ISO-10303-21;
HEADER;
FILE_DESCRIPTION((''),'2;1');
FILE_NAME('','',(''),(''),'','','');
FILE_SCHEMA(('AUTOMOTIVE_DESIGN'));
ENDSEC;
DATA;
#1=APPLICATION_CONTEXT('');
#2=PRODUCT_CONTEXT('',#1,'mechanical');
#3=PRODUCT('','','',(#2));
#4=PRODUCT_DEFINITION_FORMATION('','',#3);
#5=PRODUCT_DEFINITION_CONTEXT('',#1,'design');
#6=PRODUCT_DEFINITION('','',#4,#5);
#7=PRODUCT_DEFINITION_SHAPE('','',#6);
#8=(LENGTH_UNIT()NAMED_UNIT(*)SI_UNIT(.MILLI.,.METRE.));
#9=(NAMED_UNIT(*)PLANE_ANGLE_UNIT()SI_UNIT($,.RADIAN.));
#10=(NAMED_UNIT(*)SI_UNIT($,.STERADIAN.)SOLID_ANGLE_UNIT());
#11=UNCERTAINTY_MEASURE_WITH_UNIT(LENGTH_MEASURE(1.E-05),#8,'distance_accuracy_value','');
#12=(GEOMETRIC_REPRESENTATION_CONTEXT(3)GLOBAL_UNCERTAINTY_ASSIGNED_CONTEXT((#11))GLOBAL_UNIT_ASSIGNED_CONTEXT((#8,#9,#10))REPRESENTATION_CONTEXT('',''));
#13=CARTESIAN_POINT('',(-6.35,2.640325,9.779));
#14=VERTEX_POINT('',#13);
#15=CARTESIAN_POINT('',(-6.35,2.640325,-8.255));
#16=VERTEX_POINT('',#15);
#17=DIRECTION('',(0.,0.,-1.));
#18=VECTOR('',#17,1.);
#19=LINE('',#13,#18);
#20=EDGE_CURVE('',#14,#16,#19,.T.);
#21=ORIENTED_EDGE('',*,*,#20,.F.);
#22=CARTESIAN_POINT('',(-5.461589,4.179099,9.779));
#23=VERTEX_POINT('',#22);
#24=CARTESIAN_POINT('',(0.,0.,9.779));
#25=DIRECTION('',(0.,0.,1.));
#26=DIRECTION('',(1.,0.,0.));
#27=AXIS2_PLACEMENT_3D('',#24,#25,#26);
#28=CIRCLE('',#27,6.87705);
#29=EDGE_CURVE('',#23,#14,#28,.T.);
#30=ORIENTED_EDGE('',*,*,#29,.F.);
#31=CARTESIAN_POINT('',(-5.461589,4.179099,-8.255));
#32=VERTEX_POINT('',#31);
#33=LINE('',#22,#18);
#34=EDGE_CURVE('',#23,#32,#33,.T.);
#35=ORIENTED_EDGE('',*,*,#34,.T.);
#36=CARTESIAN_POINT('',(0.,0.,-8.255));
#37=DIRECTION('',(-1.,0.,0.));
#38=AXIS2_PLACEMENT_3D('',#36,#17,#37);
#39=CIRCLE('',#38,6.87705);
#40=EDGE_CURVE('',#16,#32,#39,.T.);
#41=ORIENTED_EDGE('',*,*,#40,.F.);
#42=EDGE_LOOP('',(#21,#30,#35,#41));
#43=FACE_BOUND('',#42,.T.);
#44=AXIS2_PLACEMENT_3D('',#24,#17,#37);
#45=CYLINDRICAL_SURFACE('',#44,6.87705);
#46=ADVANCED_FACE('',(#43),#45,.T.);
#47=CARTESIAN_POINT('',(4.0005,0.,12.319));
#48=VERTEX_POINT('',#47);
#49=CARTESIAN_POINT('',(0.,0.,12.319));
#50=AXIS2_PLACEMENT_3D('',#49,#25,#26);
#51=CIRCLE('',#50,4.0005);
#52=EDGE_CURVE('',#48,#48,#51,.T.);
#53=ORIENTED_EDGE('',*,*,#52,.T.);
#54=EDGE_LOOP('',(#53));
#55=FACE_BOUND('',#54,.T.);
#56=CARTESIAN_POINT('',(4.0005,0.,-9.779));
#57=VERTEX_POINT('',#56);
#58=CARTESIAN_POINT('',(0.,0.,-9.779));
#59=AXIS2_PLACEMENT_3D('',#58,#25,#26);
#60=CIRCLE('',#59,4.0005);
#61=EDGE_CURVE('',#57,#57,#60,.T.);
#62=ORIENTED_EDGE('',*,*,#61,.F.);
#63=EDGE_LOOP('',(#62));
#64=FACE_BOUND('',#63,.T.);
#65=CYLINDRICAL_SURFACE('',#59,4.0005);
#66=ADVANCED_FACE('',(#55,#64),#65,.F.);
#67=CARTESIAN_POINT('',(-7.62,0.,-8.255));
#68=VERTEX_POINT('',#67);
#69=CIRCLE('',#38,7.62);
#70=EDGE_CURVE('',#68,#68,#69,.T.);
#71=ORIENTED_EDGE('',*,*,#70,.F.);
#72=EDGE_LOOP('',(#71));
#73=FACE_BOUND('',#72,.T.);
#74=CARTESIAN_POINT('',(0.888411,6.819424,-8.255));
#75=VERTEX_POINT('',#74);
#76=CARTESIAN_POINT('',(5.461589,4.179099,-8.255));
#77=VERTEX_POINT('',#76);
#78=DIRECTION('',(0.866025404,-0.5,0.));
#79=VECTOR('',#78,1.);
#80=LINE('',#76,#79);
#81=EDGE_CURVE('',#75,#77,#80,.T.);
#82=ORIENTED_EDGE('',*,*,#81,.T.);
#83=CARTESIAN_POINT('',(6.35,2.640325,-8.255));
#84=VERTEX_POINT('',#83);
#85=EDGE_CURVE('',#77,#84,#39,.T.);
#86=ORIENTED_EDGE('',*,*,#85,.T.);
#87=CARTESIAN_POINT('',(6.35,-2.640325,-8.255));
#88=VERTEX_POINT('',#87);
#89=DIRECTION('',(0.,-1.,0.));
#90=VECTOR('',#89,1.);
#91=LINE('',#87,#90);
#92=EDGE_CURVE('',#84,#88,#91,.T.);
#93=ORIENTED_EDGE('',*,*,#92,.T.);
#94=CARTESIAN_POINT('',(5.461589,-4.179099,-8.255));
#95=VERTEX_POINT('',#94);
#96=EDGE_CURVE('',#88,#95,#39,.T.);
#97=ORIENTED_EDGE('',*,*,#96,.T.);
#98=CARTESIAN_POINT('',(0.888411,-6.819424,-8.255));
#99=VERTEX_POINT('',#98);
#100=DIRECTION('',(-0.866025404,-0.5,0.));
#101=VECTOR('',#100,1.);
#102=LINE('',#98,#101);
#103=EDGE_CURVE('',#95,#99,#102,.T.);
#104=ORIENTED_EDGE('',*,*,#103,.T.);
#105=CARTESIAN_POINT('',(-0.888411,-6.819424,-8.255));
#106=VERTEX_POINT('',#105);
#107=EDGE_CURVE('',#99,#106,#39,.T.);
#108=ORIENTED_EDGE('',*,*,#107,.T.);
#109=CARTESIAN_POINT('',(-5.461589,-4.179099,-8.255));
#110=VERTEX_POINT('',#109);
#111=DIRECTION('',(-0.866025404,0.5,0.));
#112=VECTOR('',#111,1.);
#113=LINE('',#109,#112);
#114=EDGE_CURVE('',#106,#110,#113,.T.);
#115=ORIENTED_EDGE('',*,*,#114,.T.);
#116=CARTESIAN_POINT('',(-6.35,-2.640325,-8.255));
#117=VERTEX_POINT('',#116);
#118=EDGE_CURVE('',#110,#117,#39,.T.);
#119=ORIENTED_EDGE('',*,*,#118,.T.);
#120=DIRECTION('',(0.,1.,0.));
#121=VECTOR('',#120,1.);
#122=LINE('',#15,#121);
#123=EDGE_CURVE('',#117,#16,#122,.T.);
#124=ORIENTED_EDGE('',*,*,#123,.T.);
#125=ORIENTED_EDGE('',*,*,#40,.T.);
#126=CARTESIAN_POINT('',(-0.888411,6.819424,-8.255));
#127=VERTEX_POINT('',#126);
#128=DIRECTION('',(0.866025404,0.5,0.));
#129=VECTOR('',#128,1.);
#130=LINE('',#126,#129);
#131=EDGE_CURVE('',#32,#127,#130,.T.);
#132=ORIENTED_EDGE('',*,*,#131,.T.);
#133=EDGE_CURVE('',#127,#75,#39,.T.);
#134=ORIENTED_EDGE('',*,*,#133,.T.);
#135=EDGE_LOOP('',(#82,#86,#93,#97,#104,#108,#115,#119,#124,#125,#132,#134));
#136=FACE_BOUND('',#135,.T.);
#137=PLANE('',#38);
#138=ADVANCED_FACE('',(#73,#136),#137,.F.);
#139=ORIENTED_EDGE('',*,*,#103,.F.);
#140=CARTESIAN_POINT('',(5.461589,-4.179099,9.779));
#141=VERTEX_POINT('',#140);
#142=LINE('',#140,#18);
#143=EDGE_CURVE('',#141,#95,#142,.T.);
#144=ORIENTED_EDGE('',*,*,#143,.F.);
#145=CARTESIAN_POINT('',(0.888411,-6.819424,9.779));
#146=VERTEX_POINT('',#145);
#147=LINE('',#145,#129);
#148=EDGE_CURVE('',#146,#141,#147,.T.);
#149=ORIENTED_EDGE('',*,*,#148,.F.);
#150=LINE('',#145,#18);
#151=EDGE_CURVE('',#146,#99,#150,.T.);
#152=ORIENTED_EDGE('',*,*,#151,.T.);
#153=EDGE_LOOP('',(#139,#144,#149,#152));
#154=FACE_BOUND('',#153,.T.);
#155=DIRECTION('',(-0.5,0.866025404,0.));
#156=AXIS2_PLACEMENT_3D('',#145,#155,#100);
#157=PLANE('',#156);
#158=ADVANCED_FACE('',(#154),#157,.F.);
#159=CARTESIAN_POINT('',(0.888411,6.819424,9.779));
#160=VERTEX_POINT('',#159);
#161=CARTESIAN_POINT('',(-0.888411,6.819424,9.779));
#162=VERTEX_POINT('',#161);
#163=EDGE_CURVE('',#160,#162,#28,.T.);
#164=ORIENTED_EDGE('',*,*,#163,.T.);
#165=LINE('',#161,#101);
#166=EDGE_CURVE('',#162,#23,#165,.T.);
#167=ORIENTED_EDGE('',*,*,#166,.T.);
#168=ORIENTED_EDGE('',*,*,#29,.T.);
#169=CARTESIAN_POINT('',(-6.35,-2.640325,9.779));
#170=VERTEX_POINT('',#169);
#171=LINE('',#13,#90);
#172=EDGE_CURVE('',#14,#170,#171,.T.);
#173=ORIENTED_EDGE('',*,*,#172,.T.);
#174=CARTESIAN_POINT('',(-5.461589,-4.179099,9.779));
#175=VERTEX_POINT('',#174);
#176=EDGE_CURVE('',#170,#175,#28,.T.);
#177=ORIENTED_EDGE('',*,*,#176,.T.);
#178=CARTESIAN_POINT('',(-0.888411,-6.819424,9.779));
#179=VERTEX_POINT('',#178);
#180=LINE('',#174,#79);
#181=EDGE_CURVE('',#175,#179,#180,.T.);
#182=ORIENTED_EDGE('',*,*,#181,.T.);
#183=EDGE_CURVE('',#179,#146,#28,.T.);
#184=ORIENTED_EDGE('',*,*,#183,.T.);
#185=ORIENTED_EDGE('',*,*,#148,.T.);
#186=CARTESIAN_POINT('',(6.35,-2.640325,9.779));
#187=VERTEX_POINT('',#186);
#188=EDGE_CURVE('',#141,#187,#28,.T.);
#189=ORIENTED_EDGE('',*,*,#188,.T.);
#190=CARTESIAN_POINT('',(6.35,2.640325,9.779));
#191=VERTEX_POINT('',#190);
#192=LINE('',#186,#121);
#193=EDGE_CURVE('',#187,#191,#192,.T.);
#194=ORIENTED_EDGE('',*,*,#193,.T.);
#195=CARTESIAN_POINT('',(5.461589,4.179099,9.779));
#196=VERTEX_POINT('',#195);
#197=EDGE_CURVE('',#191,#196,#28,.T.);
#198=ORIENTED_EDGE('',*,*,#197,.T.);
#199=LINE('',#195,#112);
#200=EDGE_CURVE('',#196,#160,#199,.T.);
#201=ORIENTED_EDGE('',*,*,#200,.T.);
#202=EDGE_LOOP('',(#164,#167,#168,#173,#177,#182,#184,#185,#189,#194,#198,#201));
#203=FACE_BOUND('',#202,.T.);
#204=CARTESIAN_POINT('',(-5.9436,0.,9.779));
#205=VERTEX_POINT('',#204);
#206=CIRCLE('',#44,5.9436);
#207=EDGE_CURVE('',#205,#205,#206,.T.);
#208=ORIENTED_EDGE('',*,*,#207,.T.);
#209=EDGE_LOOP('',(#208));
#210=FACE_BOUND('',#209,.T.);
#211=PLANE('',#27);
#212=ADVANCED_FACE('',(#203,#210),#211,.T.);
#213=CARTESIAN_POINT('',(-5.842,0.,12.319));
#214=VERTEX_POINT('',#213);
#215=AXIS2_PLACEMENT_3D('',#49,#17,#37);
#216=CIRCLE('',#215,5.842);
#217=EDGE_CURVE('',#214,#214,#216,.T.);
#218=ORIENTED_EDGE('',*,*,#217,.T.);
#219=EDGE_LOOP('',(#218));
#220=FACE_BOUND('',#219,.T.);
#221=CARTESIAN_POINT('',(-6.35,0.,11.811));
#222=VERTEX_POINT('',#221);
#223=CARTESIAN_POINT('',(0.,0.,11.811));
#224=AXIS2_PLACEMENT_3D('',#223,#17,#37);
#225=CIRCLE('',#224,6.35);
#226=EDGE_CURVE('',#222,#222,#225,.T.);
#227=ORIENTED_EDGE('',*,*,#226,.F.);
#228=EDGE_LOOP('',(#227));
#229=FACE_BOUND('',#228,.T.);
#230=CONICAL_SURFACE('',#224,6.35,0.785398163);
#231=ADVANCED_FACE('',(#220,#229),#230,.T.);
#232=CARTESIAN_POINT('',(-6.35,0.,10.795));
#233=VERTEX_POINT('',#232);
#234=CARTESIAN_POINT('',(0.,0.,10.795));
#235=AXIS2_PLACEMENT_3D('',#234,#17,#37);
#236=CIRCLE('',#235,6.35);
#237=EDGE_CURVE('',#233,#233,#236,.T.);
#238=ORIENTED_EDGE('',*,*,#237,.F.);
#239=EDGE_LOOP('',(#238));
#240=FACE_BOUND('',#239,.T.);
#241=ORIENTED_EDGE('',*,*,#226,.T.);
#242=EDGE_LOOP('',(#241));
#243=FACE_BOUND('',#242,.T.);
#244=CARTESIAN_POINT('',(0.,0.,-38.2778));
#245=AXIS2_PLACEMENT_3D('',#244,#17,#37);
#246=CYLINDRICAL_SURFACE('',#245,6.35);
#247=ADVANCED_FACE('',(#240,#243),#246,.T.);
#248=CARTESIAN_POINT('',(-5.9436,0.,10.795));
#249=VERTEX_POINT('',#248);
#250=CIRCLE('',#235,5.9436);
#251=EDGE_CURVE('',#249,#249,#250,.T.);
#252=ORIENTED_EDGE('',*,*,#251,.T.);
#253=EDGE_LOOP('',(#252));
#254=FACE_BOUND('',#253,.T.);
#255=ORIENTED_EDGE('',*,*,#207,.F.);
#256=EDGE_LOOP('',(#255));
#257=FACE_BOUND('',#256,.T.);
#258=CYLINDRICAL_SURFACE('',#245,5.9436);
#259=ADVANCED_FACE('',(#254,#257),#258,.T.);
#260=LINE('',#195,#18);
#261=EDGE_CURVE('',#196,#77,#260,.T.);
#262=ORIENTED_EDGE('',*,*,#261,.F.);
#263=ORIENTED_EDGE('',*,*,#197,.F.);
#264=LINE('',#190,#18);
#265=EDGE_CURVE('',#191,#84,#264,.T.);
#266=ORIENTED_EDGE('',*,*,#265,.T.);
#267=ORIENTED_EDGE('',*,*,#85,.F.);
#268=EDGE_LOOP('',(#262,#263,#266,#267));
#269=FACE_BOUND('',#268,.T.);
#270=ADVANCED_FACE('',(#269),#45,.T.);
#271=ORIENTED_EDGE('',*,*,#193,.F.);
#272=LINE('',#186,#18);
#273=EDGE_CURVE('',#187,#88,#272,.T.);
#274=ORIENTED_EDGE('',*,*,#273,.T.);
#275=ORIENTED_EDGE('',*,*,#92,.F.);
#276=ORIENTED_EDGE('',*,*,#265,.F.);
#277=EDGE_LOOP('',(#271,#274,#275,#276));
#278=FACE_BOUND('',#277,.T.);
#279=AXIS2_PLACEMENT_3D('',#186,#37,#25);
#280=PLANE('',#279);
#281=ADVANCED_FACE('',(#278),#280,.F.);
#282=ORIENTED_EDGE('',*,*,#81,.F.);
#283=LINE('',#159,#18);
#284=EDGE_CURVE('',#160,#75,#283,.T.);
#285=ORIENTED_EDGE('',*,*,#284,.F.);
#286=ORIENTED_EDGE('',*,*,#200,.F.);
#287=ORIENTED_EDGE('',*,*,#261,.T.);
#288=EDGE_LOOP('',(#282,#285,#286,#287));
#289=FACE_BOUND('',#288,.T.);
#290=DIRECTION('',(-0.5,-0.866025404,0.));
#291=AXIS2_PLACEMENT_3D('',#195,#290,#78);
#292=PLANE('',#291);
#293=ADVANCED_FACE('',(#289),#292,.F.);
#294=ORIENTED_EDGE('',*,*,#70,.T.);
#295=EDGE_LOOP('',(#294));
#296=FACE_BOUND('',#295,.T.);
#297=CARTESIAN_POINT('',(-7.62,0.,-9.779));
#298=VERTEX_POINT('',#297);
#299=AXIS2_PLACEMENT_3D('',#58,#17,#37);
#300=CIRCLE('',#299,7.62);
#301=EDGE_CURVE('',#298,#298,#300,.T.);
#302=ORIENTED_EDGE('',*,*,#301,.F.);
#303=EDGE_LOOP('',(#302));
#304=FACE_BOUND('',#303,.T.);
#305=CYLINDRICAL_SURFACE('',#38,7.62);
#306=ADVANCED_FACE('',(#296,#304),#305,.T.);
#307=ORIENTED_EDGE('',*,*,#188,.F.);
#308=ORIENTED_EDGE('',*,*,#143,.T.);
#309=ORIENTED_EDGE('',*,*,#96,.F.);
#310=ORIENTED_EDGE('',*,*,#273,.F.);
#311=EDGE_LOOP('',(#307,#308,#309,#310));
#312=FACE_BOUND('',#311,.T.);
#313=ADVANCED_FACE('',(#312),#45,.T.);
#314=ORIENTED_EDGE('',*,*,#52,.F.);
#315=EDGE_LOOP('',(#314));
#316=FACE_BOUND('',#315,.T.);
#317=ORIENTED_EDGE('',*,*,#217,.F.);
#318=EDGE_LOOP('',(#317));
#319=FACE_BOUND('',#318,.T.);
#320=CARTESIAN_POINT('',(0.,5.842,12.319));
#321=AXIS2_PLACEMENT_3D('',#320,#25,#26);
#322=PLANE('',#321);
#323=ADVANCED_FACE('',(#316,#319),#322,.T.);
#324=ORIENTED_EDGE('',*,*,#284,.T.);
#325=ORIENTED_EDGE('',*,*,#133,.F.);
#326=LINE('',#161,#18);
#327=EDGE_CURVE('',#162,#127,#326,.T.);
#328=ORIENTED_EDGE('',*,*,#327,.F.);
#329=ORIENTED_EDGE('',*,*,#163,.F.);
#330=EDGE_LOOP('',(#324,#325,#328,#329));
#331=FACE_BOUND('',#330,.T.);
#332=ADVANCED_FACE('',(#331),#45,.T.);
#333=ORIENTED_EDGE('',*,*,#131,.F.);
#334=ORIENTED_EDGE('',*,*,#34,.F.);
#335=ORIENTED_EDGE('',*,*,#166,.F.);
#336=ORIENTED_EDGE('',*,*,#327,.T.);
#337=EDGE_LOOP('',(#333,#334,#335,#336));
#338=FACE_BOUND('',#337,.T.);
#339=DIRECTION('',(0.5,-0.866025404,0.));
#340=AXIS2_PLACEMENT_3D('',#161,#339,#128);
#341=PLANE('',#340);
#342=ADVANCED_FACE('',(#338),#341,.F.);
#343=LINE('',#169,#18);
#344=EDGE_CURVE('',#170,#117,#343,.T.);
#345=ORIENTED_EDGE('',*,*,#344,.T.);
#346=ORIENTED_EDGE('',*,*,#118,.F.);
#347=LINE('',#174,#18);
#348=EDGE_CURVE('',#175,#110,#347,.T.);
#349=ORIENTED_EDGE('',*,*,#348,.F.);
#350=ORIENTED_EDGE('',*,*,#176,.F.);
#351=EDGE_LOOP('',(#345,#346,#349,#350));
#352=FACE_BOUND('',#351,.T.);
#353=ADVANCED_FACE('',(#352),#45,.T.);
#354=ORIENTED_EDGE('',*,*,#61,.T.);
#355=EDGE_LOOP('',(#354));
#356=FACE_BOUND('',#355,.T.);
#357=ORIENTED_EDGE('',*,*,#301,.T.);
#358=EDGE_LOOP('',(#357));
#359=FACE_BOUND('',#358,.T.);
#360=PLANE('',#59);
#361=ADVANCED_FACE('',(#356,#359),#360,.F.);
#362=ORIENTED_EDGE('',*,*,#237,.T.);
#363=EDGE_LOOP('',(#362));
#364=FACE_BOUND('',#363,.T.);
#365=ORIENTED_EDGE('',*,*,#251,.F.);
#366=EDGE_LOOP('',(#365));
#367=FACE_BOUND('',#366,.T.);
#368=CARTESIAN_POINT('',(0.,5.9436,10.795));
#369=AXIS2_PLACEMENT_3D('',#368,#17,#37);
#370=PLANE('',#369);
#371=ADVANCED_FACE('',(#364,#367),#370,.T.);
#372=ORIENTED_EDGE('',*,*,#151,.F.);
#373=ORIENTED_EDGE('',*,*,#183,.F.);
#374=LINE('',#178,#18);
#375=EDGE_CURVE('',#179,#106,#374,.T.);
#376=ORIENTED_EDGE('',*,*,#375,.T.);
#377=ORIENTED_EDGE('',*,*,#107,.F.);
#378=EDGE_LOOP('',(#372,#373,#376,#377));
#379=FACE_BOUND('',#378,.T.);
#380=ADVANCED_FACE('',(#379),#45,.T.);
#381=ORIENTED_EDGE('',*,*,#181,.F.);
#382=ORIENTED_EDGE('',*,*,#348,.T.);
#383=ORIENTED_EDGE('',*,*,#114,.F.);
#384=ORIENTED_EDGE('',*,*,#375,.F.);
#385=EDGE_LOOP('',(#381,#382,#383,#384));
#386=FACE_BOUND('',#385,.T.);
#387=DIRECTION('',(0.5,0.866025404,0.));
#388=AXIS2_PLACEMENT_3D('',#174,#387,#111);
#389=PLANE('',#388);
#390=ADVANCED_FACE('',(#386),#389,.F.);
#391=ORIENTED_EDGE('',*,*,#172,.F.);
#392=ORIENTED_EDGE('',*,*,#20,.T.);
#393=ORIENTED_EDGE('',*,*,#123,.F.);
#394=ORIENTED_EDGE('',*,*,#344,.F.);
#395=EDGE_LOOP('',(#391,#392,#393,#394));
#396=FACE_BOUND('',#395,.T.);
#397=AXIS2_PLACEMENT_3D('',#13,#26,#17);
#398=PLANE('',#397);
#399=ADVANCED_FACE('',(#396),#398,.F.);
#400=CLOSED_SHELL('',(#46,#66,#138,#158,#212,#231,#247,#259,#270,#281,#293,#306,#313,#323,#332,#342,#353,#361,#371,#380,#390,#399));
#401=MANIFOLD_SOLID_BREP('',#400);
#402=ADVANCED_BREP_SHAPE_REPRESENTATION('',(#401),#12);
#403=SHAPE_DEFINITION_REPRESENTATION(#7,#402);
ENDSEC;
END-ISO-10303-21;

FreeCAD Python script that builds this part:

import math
import FreeCAD as App
import Part
import Sketcher
Q = App.Units.Quantity


def add_polygon(sketch, points):
    """Adds a closed chain of lines whose ends are joined by coincident constraints."""
    first, n = sketch.GeometryCount, len(points)
    for a, b in zip(points, points[1:] + points[:1]):
        sketch.addGeometry(Part.LineSegment(App.Vector(*a, 0), App.Vector(*b, 0)), False)
    for i in range(n):
        sketch.addConstraint(Sketcher.Constraint("Coincident", first + i, 2, first + (i + 1) % n, 1))

doc = App.newDocument("Part")
body = doc.addObject("PartDesign::Body", "Body")

sketch1 = body.newObject("Sketcher::SketchObject", "Sketch")
sketch1.AttachmentSupport = (doc.getObject("XY_Plane"), [""])
sketch1.MapMode = "FlatFace"
sketch1.addGeometry(Part.Circle(App.Vector(0, 0, 0), App.Vector(0, 0, 1), 6), False)
sketch1.addConstraint(Sketcher.Constraint("Coincident", 0, 3, -1, 1))
sketch1.addConstraint(Sketcher.Constraint("Diameter", 0, Q("0.5 in")))
pad1 = body.newObject("PartDesign::Pad", "Pad")
pad1.Profile = sketch1
pad1.Type = "TwoLengths"
pad1.Length = Q("0.385 in")
pad1.Length2 = Q("0.385 in")

sketch2 = body.newObject("Sketcher::SketchObject", "Sketch001")
sketch2.AttachmentSupport = (doc.getObject("XY_Plane"), [""])
sketch2.MapMode = "FlatFace"
sketch2.addGeometry(Part.LineSegment(App.Vector(-0.9, 6.8, 0), App.Vector(-5.5, 4.2, 0)), False)
sketch2.addGeometry(Part.ArcOfCircle(Part.Circle(App.Vector(0, 0, 0), App.Vector(0, 0, 1), 6.9), math.radians(142.58), math.radians(157.42)), False)
sketch2.addGeometry(Part.LineSegment(App.Vector(-6.3, 2.6, 0), App.Vector(-6.3, -2.6, 0)), False)
sketch2.addGeometry(Part.ArcOfCircle(Part.Circle(App.Vector(0, 0, 0), App.Vector(0, 0, 1), 6.9), math.radians(-157.42), math.radians(-142.58)), False)
sketch2.addGeometry(Part.LineSegment(App.Vector(-5.5, -4.2, 0), App.Vector(-0.9, -6.8, 0)), False)
sketch2.addGeometry(Part.ArcOfCircle(Part.Circle(App.Vector(0, 0, 0), App.Vector(0, 0, 1), 6.9), math.radians(-97.42), math.radians(-82.58)), False)
sketch2.addGeometry(Part.LineSegment(App.Vector(0.9, -6.8, 0), App.Vector(5.5, -4.2, 0)), False)
sketch2.addGeometry(Part.ArcOfCircle(Part.Circle(App.Vector(0, 0, 0), App.Vector(0, 0, 1), 6.9), math.radians(-37.42), math.radians(-22.58)), False)
sketch2.addGeometry(Part.LineSegment(App.Vector(6.3, -2.6, 0), App.Vector(6.3, 2.6, 0)), False)
sketch2.addGeometry(Part.ArcOfCircle(Part.Circle(App.Vector(0, 0, 0), App.Vector(0, 0, 1), 6.9), math.radians(22.58), math.radians(37.42)), False)
sketch2.addGeometry(Part.LineSegment(App.Vector(5.5, 4.2, 0), App.Vector(0.9, 6.8, 0)), False)
sketch2.addGeometry(Part.ArcOfCircle(Part.Circle(App.Vector(0, 0, 0), App.Vector(0, 0, 1), 6.9), math.radians(82.58), math.radians(97.42)), False)
sketch2.addConstraint(Sketcher.Constraint("Coincident", 0, 2, 1, 1))
sketch2.addConstraint(Sketcher.Constraint("Coincident", 1, 2, 2, 1))
sketch2.addConstraint(Sketcher.Constraint("Coincident", 2, 2, 3, 1))
sketch2.addConstraint(Sketcher.Constraint("Coincident", 3, 2, 4, 1))
sketch2.addConstraint(Sketcher.Constraint("Coincident", 4, 2, 5, 1))
sketch2.addConstraint(Sketcher.Constraint("Coincident", 5, 2, 6, 1))
sketch2.addConstraint(Sketcher.Constraint("Coincident", 6, 2, 7, 1))
sketch2.addConstraint(Sketcher.Constraint("Coincident", 7, 2, 8, 1))
sketch2.addConstraint(Sketcher.Constraint("Coincident", 8, 2, 9, 1))
sketch2.addConstraint(Sketcher.Constraint("Coincident", 9, 2, 10, 1))
sketch2.addConstraint(Sketcher.Constraint("Coincident", 10, 2, 11, 1))
sketch2.addConstraint(Sketcher.Constraint("Coincident", 11, 2, 0, 1))
sketch2.addConstraint(Sketcher.Constraint("Vertical", 2))
sketch2.addConstraint(Sketcher.Constraint("Vertical", 8))
sketch2.addConstraint(Sketcher.Constraint("Coincident", 1, 3, -1, 1))
sketch2.addConstraint(Sketcher.Constraint("Coincident", 3, 3, -1, 1))
sketch2.addConstraint(Sketcher.Constraint("Coincident", 5, 3, -1, 1))
sketch2.addConstraint(Sketcher.Constraint("Coincident", 7, 3, -1, 1))
sketch2.addConstraint(Sketcher.Constraint("Coincident", 9, 3, -1, 1))
sketch2.addConstraint(Sketcher.Constraint("Coincident", 11, 3, -1, 1))
sketch2.addConstraint(Sketcher.Constraint("Equal", 1, 3))
sketch2.addConstraint(Sketcher.Constraint("Equal", 3, 5))
sketch2.addConstraint(Sketcher.Constraint("Equal", 5, 7))
sketch2.addConstraint(Sketcher.Constraint("Equal", 7, 9))
sketch2.addConstraint(Sketcher.Constraint("Equal", 9, 11))
sketch2.addConstraint(Sketcher.Constraint("Parallel", 0, 6))
sketch2.addConstraint(Sketcher.Constraint("Parallel", 4, 10))
sketch2.addConstraint(Sketcher.Constraint("Horizontal", 4, 2, 5, 2))
sketch2.addConstraint(Sketcher.Constraint("Horizontal", 3, 2, 6, 2))
sketch2.addConstraint(Sketcher.Constraint("Horizontal", 2, 2, 7, 2))
sketch2.addConstraint(Sketcher.Constraint("Horizontal", 0, 2, 9, 2))
sketch2.addConstraint(Sketcher.Constraint("Vertical", 0, 2, 3, 2))
sketch2.addConstraint(Sketcher.Constraint("Angle", 0, Q("-150 deg")))
sketch2.addConstraint(Sketcher.Constraint("DistanceX", 1, 2, -1, 1, Q("0.25 in")))
sketch2.addConstraint(Sketcher.Constraint("DistanceX", 3, 2, 5, 2, Q("0.25 in")))
sketch2.addConstraint(Sketcher.Constraint("Radius", 1, 6.87705))
pad2 = body.newObject("PartDesign::Pad", "Pad001")
pad2.Profile = sketch2
pad2.Length = Q("0.77 in")
pad2.Midplane = True

sketch3 = body.newObject("Sketcher::SketchObject", "Sketch002")
sketch3.AttachmentSupport = (doc.getObject("YZ_Plane"), [""])
sketch3.MapMode = "FlatFace"
add_polygon(sketch3, [(5.94, 9.78), (5.94, 10.79), (6.35, 10.79), (6.35, 11.81), (5.84, 12.32), (0, 12.32), (0, 9.78)])
sketch3.addConstraint(Sketcher.Constraint("Vertical", 0))
sketch3.addConstraint(Sketcher.Constraint("Horizontal", 1))
sketch3.addConstraint(Sketcher.Constraint("Vertical", 2))
sketch3.addConstraint(Sketcher.Constraint("Horizontal", 4))
sketch3.addConstraint(Sketcher.Constraint("Vertical", 5))
sketch3.addConstraint(Sketcher.Constraint("Horizontal", 6))
sketch3.addConstraint(Sketcher.Constraint("PointOnObject", 4, 2, -2))
sketch3.addConstraint(Sketcher.Constraint("Equal", 0, 2))
sketch3.addConstraint(Sketcher.Constraint("DistanceY", 5, 2, 5, 1, Q("0.1 in")))
sketch3.addConstraint(Sketcher.Constraint("Angle", 3, Q("135 deg")))
sketch3.addConstraint(Sketcher.Constraint("DistanceX", 4, 2, 4, 1, Q("0.23 in")))
sketch3.addConstraint(Sketcher.Constraint("DistanceY", 0, 1, 0, 2, Q("0.04 in")))
sketch3.addConstraint(Sketcher.Constraint("DistanceX", 1, 1, 1, 2, Q("0.016 in")))
sketch3.addConstraint(Sketcher.Constraint("DistanceY", -1, 1, 0, 2, Q("0.425 in")))
revolution = body.newObject("PartDesign::Revolution", "Revolution")
revolution.Profile = sketch3
revolution.ReferenceAxis = (sketch3, ["V_Axis"])
revolution.Angle = 360

sketch4 = body.newObject("Sketcher::SketchObject", "Sketch003")
sketch4.AttachmentSupport = (doc.getObject("XY_Plane"), [""])
sketch4.MapMode = "FlatFace"
sketch4.addGeometry(Part.Circle(App.Vector(0, 0, 0), App.Vector(0, 0, 1), 4), False)
sketch4.addConstraint(Sketcher.Constraint("Coincident", 0, 3, -1, 1))
sketch4.addConstraint(Sketcher.Constraint("Diameter", 0, Q("0.315 in")))
pocket1 = body.newObject("PartDesign::Pocket", "Pocket")
pocket1.Profile = sketch4
pocket1.Type = "ThroughAll"
pocket1.Midplane = True

sketch5 = body.newObject("Sketcher::SketchObject", "Sketch004")
sketch5.AttachmentSupport = (doc.getObject("XY_Plane"), [""])
sketch5.MapMode = "FlatFace"
sketch5.AttachmentOffset = App.Placement(App.Vector(0, 0, -0.385 * 25.4), App.Rotation())
sketch5.addGeometry(Part.Circle(App.Vector(0, 0, 0), App.Vector(0, 0, 1), 7.6), False)
sketch5.addGeometry(Part.Circle(App.Vector(0, 0, 0), App.Vector(0, 0, 1), 4), False)
sketch5.addConstraint(Sketcher.Constraint("Coincident", 0, 3, -1, 1))
sketch5.addConstraint(Sketcher.Constraint("Coincident", 1, 3, -1, 1))
sketch5.addConstraint(Sketcher.Constraint("Diameter", 0, Q("0.6 in")))
sketch5.addConstraint(Sketcher.Constraint("Diameter", 1, Q("0.315 in")))
pad3 = body.newObject("PartDesign::Pad", "Pad002")
pad3.Profile = sketch5
pad3.Length = Q("0.06 in")

doc.recompute()
